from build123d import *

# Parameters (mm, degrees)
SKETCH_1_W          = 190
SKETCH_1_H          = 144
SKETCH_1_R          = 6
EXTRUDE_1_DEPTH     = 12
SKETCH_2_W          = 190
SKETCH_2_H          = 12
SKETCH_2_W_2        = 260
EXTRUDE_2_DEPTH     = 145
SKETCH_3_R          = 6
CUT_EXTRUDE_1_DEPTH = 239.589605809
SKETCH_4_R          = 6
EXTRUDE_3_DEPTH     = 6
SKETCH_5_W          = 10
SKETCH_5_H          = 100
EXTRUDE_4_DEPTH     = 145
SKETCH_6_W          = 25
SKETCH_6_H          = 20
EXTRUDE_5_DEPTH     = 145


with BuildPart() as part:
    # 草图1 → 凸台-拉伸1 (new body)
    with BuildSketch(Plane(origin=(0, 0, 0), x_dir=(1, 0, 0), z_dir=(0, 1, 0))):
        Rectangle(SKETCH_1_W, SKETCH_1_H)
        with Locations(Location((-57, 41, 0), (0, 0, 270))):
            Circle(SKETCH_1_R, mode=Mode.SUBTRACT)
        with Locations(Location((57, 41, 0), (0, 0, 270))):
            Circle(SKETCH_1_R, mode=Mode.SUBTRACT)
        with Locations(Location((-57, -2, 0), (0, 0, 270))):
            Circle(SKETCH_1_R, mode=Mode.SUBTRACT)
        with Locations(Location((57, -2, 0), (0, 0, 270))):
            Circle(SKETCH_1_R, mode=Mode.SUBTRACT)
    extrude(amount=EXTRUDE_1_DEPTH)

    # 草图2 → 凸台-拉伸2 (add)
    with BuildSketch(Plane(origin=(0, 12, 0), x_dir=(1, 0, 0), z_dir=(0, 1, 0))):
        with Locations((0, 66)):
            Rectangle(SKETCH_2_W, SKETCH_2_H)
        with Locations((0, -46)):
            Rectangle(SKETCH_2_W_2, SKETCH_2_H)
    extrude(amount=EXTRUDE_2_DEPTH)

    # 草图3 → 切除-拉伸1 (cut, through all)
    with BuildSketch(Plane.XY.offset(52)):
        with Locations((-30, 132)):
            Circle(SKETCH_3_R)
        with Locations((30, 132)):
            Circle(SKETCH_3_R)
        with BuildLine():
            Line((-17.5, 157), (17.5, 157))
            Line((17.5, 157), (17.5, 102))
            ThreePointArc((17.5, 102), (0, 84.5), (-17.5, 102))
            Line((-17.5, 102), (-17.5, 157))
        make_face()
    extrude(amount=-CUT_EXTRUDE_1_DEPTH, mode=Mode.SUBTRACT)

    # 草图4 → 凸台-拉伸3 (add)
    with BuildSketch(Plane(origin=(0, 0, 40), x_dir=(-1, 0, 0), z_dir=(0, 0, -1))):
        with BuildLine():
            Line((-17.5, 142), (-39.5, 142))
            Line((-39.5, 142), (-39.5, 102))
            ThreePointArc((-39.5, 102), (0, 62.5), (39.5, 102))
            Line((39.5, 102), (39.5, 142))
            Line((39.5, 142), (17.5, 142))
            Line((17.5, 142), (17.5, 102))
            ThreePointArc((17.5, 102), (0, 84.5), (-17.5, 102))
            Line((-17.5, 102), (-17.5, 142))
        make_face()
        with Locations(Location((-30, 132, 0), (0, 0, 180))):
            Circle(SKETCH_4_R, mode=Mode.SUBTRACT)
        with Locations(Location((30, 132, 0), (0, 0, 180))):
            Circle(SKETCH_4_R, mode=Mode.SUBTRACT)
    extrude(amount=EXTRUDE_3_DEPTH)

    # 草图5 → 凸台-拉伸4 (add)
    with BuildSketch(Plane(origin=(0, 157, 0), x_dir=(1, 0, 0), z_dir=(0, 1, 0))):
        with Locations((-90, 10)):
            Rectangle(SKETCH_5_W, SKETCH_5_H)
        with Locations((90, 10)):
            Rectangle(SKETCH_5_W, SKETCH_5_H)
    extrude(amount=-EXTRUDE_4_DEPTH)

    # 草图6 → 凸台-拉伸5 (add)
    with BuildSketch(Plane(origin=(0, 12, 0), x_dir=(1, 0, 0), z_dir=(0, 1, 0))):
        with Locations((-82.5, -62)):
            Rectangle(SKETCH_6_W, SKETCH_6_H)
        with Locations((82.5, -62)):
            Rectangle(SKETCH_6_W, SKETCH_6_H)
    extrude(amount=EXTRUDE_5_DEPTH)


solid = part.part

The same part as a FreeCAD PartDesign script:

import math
import FreeCAD as App
import Part
import Sketcher
from FreeCAD import Vector

doc = App.newDocument("Part")
body = doc.addObject("PartDesign::Body", "Body")

# Sketch on XZ plane
sketch1 = body.newObject("Sketcher::SketchObject", "Sketch")
sketch1.AttachmentSupport = (doc.getObject("XZ_Plane"), [""])
sketch1.MapMode = "FlatFace"
sketch1.addGeometry([
    Part.LineSegment(Vector(-95, -72, 0), Vector(-95, 72, 0)),  # 0
    Part.LineSegment(Vector(-95, 72, 0), Vector(95, 72, 0)),  # 1
    Part.LineSegment(Vector(95, 72, 0), Vector(95, -72, 0)),  # 2
    Part.LineSegment(Vector(95, -72, 0), Vector(-95, -72, 0)),  # 3
    Part.Circle(Vector(-57, 2, 0), Vector(0, 0, 1), 6),  # 4
    Part.Circle(Vector(57, 2, 0), Vector(0, 0, 1), 6),  # 5
    Part.Circle(Vector(-57, -41, 0), Vector(0, 0, 1), 6),  # 6
    Part.Circle(Vector(57, -41, 0), Vector(0, 0, 1), 6),  # 7
], False)
sketch1.addConstraint([
    Sketcher.Constraint("Coincident", 0, 2, 1, 1),
    Sketcher.Constraint("Coincident", 1, 2, 2, 1),
    Sketcher.Constraint("Coincident", 2, 2, 3, 1),
    Sketcher.Constraint("Coincident", 3, 2, 0, 1),
    Sketcher.Constraint("Vertical", 0),
    Sketcher.Constraint("Horizontal", 1),
    Sketcher.Constraint("Vertical", 2),
    Sketcher.Constraint("Horizontal", 3),
    Sketcher.Constraint("Equal", 4, 5),
    Sketcher.Constraint("Equal", 5, 6),
    Sketcher.Constraint("Equal", 6, 7),
    Sketcher.Constraint("Symmetric", 0, 2, 2, 2, -1, 1),
    Sketcher.Constraint("Symmetric", 4, 3, 5, 3, -2),
    Sketcher.Constraint("Symmetric", 6, 3, 7, 3, -2),
    Sketcher.Constraint("Vertical", 4, 3, 6, 3),
    Sketcher.Constraint("Diameter", 4, 12.0),
    Sketcher.Constraint("DistanceX", 1, 1, 1, 2, 190.0),
    Sketcher.Constraint("DistanceY", 0, 1, 0, 2, 144.0),
    Sketcher.Constraint("DistanceX", 4, 3, -1, 1, 57.0),
    Sketcher.Constraint("DistanceY", -1, 1, 4, 3, 2.0),
    Sketcher.Constraint("DistanceY", 6, 3, -1, 1, 41.0),
])
pad1 = body.newObject("PartDesign::Pad", "Pad")
pad1.Profile = sketch1
pad1.Length = 12
pad1.Reversed = True

# Sketch on XZ plane
sketch2 = body.newObject("Sketcher::SketchObject", "Sketch001")
sketch2.AttachmentSupport = (doc.getObject("XZ_Plane"), [""])
sketch2.MapMode = "FlatFace"
sketch2.AttachmentOffset = App.Placement(Vector(0, 0, -12), App.Rotation())
sketch2.addGeometry([
    Part.LineSegment(Vector(-95, -72, 0), Vector(-95, -60, 0)),  # 0
    Part.LineSegment(Vector(-95, -60, 0), Vector(95, -60, 0)),  # 1
    Part.LineSegment(Vector(95, -60, 0), Vector(95, -72, 0)),  # 2
    Part.LineSegment(Vector(95, -72, 0), Vector(-95, -72, 0)),  # 3
    Part.LineSegment(Vector(-130, 40, 0), Vector(-130, 52, 0)),  # 4
    Part.LineSegment(Vector(-130, 52, 0), Vector(130, 52, 0)),  # 5
    Part.LineSegment(Vector(130, 52, 0), Vector(130, 40, 0)),  # 6
    Part.LineSegment(Vector(130, 40, 0), Vector(-130, 40, 0)),  # 7
], False)
sketch2.addConstraint([
    Sketcher.Constraint("Coincident", 0, 2, 1, 1),
    Sketcher.Constraint("Coincident", 1, 2, 2, 1),
    Sketcher.Constraint("Coincident", 2, 2, 3, 1),
    Sketcher.Constraint("Coincident", 3, 2, 0, 1),
    Sketcher.Constraint("Coincident", 4, 2, 5, 1),
    Sketcher.Constraint("Coincident", 5, 2, 6, 1),
    Sketcher.Constraint("Coincident", 6, 2, 7, 1),
    Sketcher.Constraint("Coincident", 7, 2, 4, 1),
    Sketcher.Constraint("Vertical", 0),
    Sketcher.Constraint("Horizontal", 1),
    Sketcher.Constraint("Vertical", 2),
    Sketcher.Constraint("Horizontal", 3),
    Sketcher.Constraint("Vertical", 4),
    Sketcher.Constraint("Horizontal", 5),
    Sketcher.Constraint("Vertical", 6),
    Sketcher.Constraint("Horizontal", 7),
    Sketcher.Constraint("Equal", 2, 4),
    Sketcher.Constraint("DistanceX", 1, 1, 1, 2, 190.0),
    Sketcher.Constraint("DistanceX", 5, 1, 5, 2, 260.0),
    Sketcher.Constraint("DistanceY", 0, 1, 0, 2, 12.0),
    Sketcher.Constraint("DistanceX", 0, 2, -1, 1, 95.0),
    Sketcher.Constraint("DistanceY", 0, 2, -1, 1, 60.0),
    Sketcher.Constraint("DistanceX", 4, 2, -1, 1, 130.0),
    Sketcher.Constraint("DistanceY", -1, 1, 4, 2, 52.0),
])
pad2 = body.newObject("PartDesign::Pad", "Pad001")
pad2.Profile = sketch2
pad2.Length = 145
pad2.Reversed = True

# Sketch on XY plane
sketch3 = body.newObject("Sketcher::SketchObject", "Sketch002")
sketch3.AttachmentSupport = (doc.getObject("XY_Plane"), [""])
sketch3.MapMode = "FlatFace"
sketch3.AttachmentOffset = App.Placement(Vector(0, 0, 52), App.Rotation())
sketch3.addGeometry([
    Part.Circle(Vector(-30, 132, 0), Vector(0, 0, 1), 6),  # 0
    Part.Circle(Vector(30, 132, 0), Vector(0, 0, 1), 6),  # 1
    Part.LineSegment(Vector(18, 157, 0), Vector(-18, 157, 0)),  # 2
    Part.LineSegment(Vector(-18, 157, 0), Vector(-18, 102, 0)),  # 3
    Part.ArcOfCircle(Part.Circle(Vector(0, 102, 0), Vector(0, 0, 1), 18), math.radians(180), math.radians(360)),  # 4
    Part.LineSegment(Vector(18, 102, 0), Vector(18, 157, 0)),  # 5
], False)
sketch3.addConstraint([
    Sketcher.Constraint("Coincident", 2, 2, 3, 1),
    Sketcher.Constraint("Tangent", 3, 2, 4, 1),
    Sketcher.Constraint("Tangent", 4, 2, 5, 1),
    Sketcher.Constraint("Coincident", 5, 2, 2, 1),
    Sketcher.Constraint("Horizontal", 2),
    Sketcher.Constraint("Vertical", 3),
    Sketcher.Constraint("Vertical", 5),
    Sketcher.Constraint("Equal", 0, 1),
    Sketcher.Constraint("Symmetric", 0, 3, 1, 3, -2),
    Sketcher.Constraint("PointOnObject", 4, 3, -2),
    Sketcher.Constraint("Diameter", 0, 12.0),
    Sketcher.Constraint("Radius", 4, 17.5),
    Sketcher.Constraint("DistanceY", 3, 2, 3, 1, 55.0),
    Sketcher.Constraint("DistanceX", 0, 3, -1, 1, 30.0),
    Sketcher.Constraint("DistanceY", -1, 1, 0, 3, 132.0),
    Sketcher.Constraint("DistanceY", -1, 1, 4, 3, 102.0),
])
pocket1 = body.newObject("PartDesign::Pocket", "Pocket")
pocket1.Profile = sketch3
pocket1.Type = "ThroughAll"

# Sketch on XY plane
sketch4 = body.newObject("Sketcher::SketchObject", "Sketch003")
sketch4.AttachmentSupport = (doc.getObject("XY_Plane"), [""])
sketch4.MapMode = "FlatFace"
sketch4.AttachmentOffset = App.Placement(Vector(0, 0, 40), App.Rotation())
sketch4.addGeometry([
    Part.LineSegment(Vector(18, 142, 0), Vector(40, 142, 0)),  # 0
    Part.LineSegment(Vector(40, 142, 0), Vector(40, 102, 0)),  # 1
    Part.ArcOfCircle(Part.Circle(Vector(0, 102, 0), Vector(0, 0, 1), 40), math.radians(180), math.radians(360)),  # 2
    Part.LineSegment(Vector(-40, 102, 0), Vector(-40, 142, 0)),  # 3
    Part.LineSegment(Vector(-40, 142, 0), Vector(-18, 142, 0)),  # 4
    Part.LineSegment(Vector(-18, 142, 0), Vector(-18, 102, 0)),  # 5
    Part.ArcOfCircle(Part.Circle(Vector(0, 102, 0), Vector(0, 0, 1), 18), math.radians(180), math.radians(360)),  # 6
    Part.LineSegment(Vector(18, 102, 0), Vector(18, 142, 0)),  # 7
    Part.Circle(Vector(30, 132, 0), Vector(0, 0, 1), 6),  # 8
    Part.Circle(Vector(-30, 132, 0), Vector(0, 0, 1), 6),  # 9
], False)
sketch4.addConstraint([
    Sketcher.Constraint("Coincident", 0, 2, 1, 1),
    Sketcher.Constraint("Tangent", 1, 2, 2, 2),
    Sketcher.Constraint("Tangent", 2, 1, 3, 1),
    Sketcher.Constraint("Coincident", 3, 2, 4, 1),
    Sketcher.Constraint("Coincident", 4, 2, 5, 1),
    Sketcher.Constraint("Tangent", 5, 2, 6, 1),
    Sketcher.Constraint("Tangent", 6, 2, 7, 1),
    Sketcher.Constraint("Coincident", 7, 2, 0, 1),
    Sketcher.Constraint("Horizontal", 0),
    Sketcher.Constraint("Vertical", 1),
    Sketcher.Constraint("Vertical", 3),
    Sketcher.Constraint("Horizontal", 4),
    Sketcher.Constraint("Vertical", 5),
    Sketcher.Constraint("Vertical", 7),
    Sketcher.Constraint("Coincident", 6, 3, 2, 3),
    Sketcher.Constraint("Equal", 8, 9),
    Sketcher.Constraint("Symmetric", 8, 3, 9, 3, -2),
    Sketcher.Constraint("Symmetric", 0, 2, 3, 2, -2),
    Sketcher.Constraint("Diameter", 8, 12.0),
    Sketcher.Constraint("Radius", 2, 39.5),
    Sketcher.Constraint("Radius", 6, 17.5),
    Sketcher.Constraint("DistanceY", 1, 2, 1, 1, 40.0),
    Sketcher.Constraint("DistanceY", -1, 1, 2, 3, 102.0),
    Sketcher.Constraint("DistanceX", -1, 1, 8, 3, 30.0),
    Sketcher.Constraint("DistanceY", -1, 1, 8, 3, 132.0),
])
pad3 = body.newObject("PartDesign::Pad", "Pad002")
pad3.Profile = sketch4
pad3.Length = 6
pad3.Reversed = True

# Sketch on XZ plane
sketch5 = body.newObject("Sketcher::SketchObject", "Sketch004")
sketch5.AttachmentSupport = (doc.getObject("XZ_Plane"), [""])
sketch5.MapMode = "FlatFace"
sketch5.AttachmentOffset = App.Placement(Vector(0, 0, -157), App.Rotation())
sketch5.addGeometry([
    Part.LineSegment(Vector(-95, -60, 0), Vector(-95, 40, 0)),  # 0
    Part.LineSegment(Vector(-95, 40, 0), Vector(-85, 40, 0)),  # 1
    Part.LineSegment(Vector(-85, 40, 0), Vector(-85, -60, 0)),  # 2
    Part.LineSegment(Vector(-85, -60, 0), Vector(-95, -60, 0)),  # 3
    Part.LineSegment(Vector(85, -60, 0), Vector(85, 40, 0)),  # 4
    Part.LineSegment(Vector(85, 40, 0), Vector(95, 40, 0)),  # 5
    Part.LineSegment(Vector(95, 40, 0), Vector(95, -60, 0)),  # 6
    Part.LineSegment(Vector(95, -60, 0), Vector(85, -60, 0)),  # 7
], False)
sketch5.addConstraint([
    Sketcher.Constraint("Coincident", 0, 2, 1, 1),
    Sketcher.Constraint("Coincident", 1, 2, 2, 1),
    Sketcher.Constraint("Coincident", 2, 2, 3, 1),
    Sketcher.Constraint("Coincident", 3, 2, 0, 1),
    Sketcher.Constraint("Coincident", 4, 2, 5, 1),
    Sketcher.Constraint("Coincident", 5, 2, 6, 1),
    Sketcher.Constraint("Coincident", 6, 2, 7, 1),
    Sketcher.Constraint("Coincident", 7, 2, 4, 1),
    Sketcher.Constraint("Vertical", 0),
    Sketcher.Constraint("Horizontal", 1),
    Sketcher.Constraint("Vertical", 2),
    Sketcher.Constraint("Horizontal", 3),
    Sketcher.Constraint("Vertical", 4),
    Sketcher.Constraint("Horizontal", 5),
    Sketcher.Constraint("Vertical", 6),
    Sketcher.Constraint("Horizontal", 7),
    Sketcher.Constraint("Symmetric", 1, 2, 4, 2, -2),
    Sketcher.Constraint("Symmetric", 3, 2, 6, 2, -2),
    Sketcher.Constraint("DistanceX", 1, 1, 1, 2, 10.0),
    Sketcher.Constraint("DistanceY", 0, 1, 0, 2, 100.0),
    Sketcher.Constraint("DistanceX", 0, 2, -1, 1, 95.0),
    Sketcher.Constraint("DistanceY", -1, 1, 0, 2, 40.0),
])
pad4 = body.newObject("PartDesign::Pad", "Pad003")
pad4.Profile = sketch5
pad4.Length = 145

# Sketch on XZ plane
sketch6 = body.newObject("Sketcher::SketchObject", "Sketch005")
sketch6.AttachmentSupport = (doc.getObject("XZ_Plane"), [""])
sketch6.MapMode = "FlatFace"
sketch6.AttachmentOffset = App.Placement(Vector(0, 0, -12), App.Rotation())
sketch6.addGeometry([
    Part.LineSegment(Vector(-95, 52, 0), Vector(-95, 72, 0)),  # 0
    Part.LineSegment(Vector(-95, 72, 0), Vector(-70, 72, 0)),  # 1
    Part.LineSegment(Vector(-70, 72, 0), Vector(-70, 52, 0)),  # 2
    Part.LineSegment(Vector(-70, 52, 0), Vector(-95, 52, 0)),  # 3
    Part.LineSegment(Vector(70, 52, 0), Vector(70, 72, 0)),  # 4
    Part.LineSegment(Vector(70, 72, 0), Vector(95, 72, 0)),  # 5
    Part.LineSegment(Vector(95, 72, 0), Vector(95, 52, 0)),  # 6
    Part.LineSegment(Vector(95, 52, 0), Vector(70, 52, 0)),  # 7
], False)
sketch6.addConstraint([
    Sketcher.Constraint("Coincident", 0, 2, 1, 1),
    Sketcher.Constraint("Coincident", 1, 2, 2, 1),
    Sketcher.Constraint("Coincident", 2, 2, 3, 1),
    Sketcher.Constraint("Coincident", 3, 2, 0, 1),
    Sketcher.Constraint("Coincident", 4, 2, 5, 1),
    Sketcher.Constraint("Coincident", 5, 2, 6, 1),
    Sketcher.Constraint("Coincident", 6, 2, 7, 1),
    Sketcher.Constraint("Coincident", 7, 2, 4, 1),
    Sketcher.Constraint("Vertical", 0),
    Sketcher.Constraint("Horizontal", 1),
    Sketcher.Constraint("Vertical", 2),
    Sketcher.Constraint("Horizontal", 3),
    Sketcher.Constraint("Vertical", 4),
    Sketcher.Constraint("Horizontal", 5),
    Sketcher.Constraint("Vertical", 6),
    Sketcher.Constraint("Horizontal", 7),
    Sketcher.Constraint("Symmetric", 1, 2, 4, 2, -2),
    Sketcher.Constraint("Symmetric", 3, 2, 6, 2, -2),
    Sketcher.Constraint("DistanceX", 1, 1, 1, 2, 25.0),
    Sketcher.Constraint("DistanceY", 0, 1, 0, 2, 20.0),
    Sketcher.Constraint("DistanceX", 0, 2, -1, 1, 95.0),
    Sketcher.Constraint("DistanceY", -1, 1, 0, 2, 72.0),
])
pad5 = body.newObject("PartDesign::Pad", "Pad004")
pad5.Profile = sketch6
pad5.Length = 145
pad5.Reversed = True

doc.recompute()
